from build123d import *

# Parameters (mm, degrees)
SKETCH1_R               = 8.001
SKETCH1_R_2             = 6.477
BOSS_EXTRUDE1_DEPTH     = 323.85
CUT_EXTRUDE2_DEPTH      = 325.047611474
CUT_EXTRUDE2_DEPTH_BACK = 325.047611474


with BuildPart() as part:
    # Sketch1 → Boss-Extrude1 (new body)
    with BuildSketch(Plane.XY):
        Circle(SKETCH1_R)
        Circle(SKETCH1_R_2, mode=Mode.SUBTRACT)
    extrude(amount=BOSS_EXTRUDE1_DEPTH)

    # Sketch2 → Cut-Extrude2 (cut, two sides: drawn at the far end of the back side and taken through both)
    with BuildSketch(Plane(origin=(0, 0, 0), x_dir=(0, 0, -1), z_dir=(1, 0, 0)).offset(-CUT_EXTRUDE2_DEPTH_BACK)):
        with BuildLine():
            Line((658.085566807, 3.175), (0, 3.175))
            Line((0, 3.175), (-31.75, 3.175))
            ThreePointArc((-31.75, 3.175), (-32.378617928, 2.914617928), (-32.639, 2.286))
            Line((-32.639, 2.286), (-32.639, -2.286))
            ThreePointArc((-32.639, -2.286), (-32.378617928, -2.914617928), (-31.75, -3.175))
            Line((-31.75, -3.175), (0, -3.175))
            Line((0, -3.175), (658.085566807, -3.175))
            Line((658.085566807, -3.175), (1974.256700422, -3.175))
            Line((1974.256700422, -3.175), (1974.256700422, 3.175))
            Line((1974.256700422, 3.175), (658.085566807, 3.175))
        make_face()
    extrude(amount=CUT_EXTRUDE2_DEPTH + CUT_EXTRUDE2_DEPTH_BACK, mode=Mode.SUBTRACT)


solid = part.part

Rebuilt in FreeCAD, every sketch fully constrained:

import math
import FreeCAD as App
import Part
import Sketcher
Q = App.Units.Quantity

doc = App.newDocument("Part")
body = doc.addObject("PartDesign::Body", "Body")

# Sketch on XY plane
sketch1 = body.newObject("Sketcher::SketchObject", "Sketch")
sketch1.AttachmentSupport = (doc.getObject("XY_Plane"), [""])
sketch1.MapMode = "FlatFace"
sketch1.addGeometry([
    Part.Circle(App.Vector(0, 0, 0), App.Vector(0, 0, 1), 8.001),
    Part.Circle(App.Vector(0, 0, 0), App.Vector(0, 0, 1), 6.477),
], False)
sketch1.addConstraint([
    Sketcher.Constraint("Coincident", 0, 3, -1, 1),
    Sketcher.Constraint("Coincident", 1, 3, -1, 1),
    Sketcher.Constraint("Diameter", 0, Q("0.63 in")),
    Sketcher.Constraint("Diameter", 1, Q("0.51 in")),
])
pad1 = body.newObject("PartDesign::Pad", "Pad")
pad1.Profile = sketch1
pad1.Length = Q("12.75 in")

# Sketch on YZ plane
sketch2 = body.newObject("Sketcher::SketchObject", "Sketch001")
sketch2.AttachmentSupport = (doc.getObject("YZ_Plane"), [""])
sketch2.MapMode = "FlatFace"
sketch2.addGeometry([
    Part.ArcOfCircle(Part.Circle(App.Vector(2.286, 31.75, 0), App.Vector(0, 0, 1), 0.889), math.radians(0), math.radians(90)),  # 0
    Part.LineSegment(App.Vector(2.286, 32.639, 0), App.Vector(-2.286, 32.639, 0)),  # 1
    Part.ArcOfCircle(Part.Circle(App.Vector(-2.286, 31.75, 0), App.Vector(0, 0, 1), 0.889), math.radians(90), math.radians(180)),  # 2
    Part.LineSegment(App.Vector(-3.175, 31.75, 0), App.Vector(-3.175, -1974.2567, 0)),  # 3
    Part.LineSegment(App.Vector(-3.175, -1974.2567, 0), App.Vector(3.175, -1974.2567, 0)),  # 4
    Part.LineSegment(App.Vector(3.175, -1974.2567, 0), App.Vector(3.175, 31.75, 0)),  # 5
], False)
sketch2.addConstraint([
    Sketcher.Constraint("Tangent", 0, 2, 1, 1),
    Sketcher.Constraint("Tangent", 1, 2, 2, 1),
    Sketcher.Constraint("Tangent", 2, 2, 3, 1),
    Sketcher.Constraint("Coincident", 3, 2, 4, 1),
    Sketcher.Constraint("Coincident", 4, 2, 5, 1),
    Sketcher.Constraint("Tangent", 5, 2, 0, 1),
    Sketcher.Constraint("Horizontal", 1),
    Sketcher.Constraint("Vertical", 3),
    Sketcher.Constraint("Horizontal", 4),
    Sketcher.Constraint("Vertical", 5),
    Sketcher.Constraint("Equal", 0, 2),
    Sketcher.Constraint("Radius", 0, Q("0.035 in")),
    Sketcher.Constraint("DistanceX", 1, 2, 1, 1, Q("0.18 in")),
    Sketcher.Constraint("DistanceX", -1, 1, 0, 3, Q("0.09 in")),
    Sketcher.Constraint("DistanceY", -1, 1, 0, 3, Q("1.25 in")),
    Sketcher.Constraint("DistanceY", 3, 2, 3, 1, Q("2006.0067 mm")),
])
pocket1 = body.newObject("PartDesign::Pocket", "Pocket")
pocket1.Profile = sketch2
pocket1.Type = "ThroughAll"
pocket1.Midplane = True

doc.recompute()
